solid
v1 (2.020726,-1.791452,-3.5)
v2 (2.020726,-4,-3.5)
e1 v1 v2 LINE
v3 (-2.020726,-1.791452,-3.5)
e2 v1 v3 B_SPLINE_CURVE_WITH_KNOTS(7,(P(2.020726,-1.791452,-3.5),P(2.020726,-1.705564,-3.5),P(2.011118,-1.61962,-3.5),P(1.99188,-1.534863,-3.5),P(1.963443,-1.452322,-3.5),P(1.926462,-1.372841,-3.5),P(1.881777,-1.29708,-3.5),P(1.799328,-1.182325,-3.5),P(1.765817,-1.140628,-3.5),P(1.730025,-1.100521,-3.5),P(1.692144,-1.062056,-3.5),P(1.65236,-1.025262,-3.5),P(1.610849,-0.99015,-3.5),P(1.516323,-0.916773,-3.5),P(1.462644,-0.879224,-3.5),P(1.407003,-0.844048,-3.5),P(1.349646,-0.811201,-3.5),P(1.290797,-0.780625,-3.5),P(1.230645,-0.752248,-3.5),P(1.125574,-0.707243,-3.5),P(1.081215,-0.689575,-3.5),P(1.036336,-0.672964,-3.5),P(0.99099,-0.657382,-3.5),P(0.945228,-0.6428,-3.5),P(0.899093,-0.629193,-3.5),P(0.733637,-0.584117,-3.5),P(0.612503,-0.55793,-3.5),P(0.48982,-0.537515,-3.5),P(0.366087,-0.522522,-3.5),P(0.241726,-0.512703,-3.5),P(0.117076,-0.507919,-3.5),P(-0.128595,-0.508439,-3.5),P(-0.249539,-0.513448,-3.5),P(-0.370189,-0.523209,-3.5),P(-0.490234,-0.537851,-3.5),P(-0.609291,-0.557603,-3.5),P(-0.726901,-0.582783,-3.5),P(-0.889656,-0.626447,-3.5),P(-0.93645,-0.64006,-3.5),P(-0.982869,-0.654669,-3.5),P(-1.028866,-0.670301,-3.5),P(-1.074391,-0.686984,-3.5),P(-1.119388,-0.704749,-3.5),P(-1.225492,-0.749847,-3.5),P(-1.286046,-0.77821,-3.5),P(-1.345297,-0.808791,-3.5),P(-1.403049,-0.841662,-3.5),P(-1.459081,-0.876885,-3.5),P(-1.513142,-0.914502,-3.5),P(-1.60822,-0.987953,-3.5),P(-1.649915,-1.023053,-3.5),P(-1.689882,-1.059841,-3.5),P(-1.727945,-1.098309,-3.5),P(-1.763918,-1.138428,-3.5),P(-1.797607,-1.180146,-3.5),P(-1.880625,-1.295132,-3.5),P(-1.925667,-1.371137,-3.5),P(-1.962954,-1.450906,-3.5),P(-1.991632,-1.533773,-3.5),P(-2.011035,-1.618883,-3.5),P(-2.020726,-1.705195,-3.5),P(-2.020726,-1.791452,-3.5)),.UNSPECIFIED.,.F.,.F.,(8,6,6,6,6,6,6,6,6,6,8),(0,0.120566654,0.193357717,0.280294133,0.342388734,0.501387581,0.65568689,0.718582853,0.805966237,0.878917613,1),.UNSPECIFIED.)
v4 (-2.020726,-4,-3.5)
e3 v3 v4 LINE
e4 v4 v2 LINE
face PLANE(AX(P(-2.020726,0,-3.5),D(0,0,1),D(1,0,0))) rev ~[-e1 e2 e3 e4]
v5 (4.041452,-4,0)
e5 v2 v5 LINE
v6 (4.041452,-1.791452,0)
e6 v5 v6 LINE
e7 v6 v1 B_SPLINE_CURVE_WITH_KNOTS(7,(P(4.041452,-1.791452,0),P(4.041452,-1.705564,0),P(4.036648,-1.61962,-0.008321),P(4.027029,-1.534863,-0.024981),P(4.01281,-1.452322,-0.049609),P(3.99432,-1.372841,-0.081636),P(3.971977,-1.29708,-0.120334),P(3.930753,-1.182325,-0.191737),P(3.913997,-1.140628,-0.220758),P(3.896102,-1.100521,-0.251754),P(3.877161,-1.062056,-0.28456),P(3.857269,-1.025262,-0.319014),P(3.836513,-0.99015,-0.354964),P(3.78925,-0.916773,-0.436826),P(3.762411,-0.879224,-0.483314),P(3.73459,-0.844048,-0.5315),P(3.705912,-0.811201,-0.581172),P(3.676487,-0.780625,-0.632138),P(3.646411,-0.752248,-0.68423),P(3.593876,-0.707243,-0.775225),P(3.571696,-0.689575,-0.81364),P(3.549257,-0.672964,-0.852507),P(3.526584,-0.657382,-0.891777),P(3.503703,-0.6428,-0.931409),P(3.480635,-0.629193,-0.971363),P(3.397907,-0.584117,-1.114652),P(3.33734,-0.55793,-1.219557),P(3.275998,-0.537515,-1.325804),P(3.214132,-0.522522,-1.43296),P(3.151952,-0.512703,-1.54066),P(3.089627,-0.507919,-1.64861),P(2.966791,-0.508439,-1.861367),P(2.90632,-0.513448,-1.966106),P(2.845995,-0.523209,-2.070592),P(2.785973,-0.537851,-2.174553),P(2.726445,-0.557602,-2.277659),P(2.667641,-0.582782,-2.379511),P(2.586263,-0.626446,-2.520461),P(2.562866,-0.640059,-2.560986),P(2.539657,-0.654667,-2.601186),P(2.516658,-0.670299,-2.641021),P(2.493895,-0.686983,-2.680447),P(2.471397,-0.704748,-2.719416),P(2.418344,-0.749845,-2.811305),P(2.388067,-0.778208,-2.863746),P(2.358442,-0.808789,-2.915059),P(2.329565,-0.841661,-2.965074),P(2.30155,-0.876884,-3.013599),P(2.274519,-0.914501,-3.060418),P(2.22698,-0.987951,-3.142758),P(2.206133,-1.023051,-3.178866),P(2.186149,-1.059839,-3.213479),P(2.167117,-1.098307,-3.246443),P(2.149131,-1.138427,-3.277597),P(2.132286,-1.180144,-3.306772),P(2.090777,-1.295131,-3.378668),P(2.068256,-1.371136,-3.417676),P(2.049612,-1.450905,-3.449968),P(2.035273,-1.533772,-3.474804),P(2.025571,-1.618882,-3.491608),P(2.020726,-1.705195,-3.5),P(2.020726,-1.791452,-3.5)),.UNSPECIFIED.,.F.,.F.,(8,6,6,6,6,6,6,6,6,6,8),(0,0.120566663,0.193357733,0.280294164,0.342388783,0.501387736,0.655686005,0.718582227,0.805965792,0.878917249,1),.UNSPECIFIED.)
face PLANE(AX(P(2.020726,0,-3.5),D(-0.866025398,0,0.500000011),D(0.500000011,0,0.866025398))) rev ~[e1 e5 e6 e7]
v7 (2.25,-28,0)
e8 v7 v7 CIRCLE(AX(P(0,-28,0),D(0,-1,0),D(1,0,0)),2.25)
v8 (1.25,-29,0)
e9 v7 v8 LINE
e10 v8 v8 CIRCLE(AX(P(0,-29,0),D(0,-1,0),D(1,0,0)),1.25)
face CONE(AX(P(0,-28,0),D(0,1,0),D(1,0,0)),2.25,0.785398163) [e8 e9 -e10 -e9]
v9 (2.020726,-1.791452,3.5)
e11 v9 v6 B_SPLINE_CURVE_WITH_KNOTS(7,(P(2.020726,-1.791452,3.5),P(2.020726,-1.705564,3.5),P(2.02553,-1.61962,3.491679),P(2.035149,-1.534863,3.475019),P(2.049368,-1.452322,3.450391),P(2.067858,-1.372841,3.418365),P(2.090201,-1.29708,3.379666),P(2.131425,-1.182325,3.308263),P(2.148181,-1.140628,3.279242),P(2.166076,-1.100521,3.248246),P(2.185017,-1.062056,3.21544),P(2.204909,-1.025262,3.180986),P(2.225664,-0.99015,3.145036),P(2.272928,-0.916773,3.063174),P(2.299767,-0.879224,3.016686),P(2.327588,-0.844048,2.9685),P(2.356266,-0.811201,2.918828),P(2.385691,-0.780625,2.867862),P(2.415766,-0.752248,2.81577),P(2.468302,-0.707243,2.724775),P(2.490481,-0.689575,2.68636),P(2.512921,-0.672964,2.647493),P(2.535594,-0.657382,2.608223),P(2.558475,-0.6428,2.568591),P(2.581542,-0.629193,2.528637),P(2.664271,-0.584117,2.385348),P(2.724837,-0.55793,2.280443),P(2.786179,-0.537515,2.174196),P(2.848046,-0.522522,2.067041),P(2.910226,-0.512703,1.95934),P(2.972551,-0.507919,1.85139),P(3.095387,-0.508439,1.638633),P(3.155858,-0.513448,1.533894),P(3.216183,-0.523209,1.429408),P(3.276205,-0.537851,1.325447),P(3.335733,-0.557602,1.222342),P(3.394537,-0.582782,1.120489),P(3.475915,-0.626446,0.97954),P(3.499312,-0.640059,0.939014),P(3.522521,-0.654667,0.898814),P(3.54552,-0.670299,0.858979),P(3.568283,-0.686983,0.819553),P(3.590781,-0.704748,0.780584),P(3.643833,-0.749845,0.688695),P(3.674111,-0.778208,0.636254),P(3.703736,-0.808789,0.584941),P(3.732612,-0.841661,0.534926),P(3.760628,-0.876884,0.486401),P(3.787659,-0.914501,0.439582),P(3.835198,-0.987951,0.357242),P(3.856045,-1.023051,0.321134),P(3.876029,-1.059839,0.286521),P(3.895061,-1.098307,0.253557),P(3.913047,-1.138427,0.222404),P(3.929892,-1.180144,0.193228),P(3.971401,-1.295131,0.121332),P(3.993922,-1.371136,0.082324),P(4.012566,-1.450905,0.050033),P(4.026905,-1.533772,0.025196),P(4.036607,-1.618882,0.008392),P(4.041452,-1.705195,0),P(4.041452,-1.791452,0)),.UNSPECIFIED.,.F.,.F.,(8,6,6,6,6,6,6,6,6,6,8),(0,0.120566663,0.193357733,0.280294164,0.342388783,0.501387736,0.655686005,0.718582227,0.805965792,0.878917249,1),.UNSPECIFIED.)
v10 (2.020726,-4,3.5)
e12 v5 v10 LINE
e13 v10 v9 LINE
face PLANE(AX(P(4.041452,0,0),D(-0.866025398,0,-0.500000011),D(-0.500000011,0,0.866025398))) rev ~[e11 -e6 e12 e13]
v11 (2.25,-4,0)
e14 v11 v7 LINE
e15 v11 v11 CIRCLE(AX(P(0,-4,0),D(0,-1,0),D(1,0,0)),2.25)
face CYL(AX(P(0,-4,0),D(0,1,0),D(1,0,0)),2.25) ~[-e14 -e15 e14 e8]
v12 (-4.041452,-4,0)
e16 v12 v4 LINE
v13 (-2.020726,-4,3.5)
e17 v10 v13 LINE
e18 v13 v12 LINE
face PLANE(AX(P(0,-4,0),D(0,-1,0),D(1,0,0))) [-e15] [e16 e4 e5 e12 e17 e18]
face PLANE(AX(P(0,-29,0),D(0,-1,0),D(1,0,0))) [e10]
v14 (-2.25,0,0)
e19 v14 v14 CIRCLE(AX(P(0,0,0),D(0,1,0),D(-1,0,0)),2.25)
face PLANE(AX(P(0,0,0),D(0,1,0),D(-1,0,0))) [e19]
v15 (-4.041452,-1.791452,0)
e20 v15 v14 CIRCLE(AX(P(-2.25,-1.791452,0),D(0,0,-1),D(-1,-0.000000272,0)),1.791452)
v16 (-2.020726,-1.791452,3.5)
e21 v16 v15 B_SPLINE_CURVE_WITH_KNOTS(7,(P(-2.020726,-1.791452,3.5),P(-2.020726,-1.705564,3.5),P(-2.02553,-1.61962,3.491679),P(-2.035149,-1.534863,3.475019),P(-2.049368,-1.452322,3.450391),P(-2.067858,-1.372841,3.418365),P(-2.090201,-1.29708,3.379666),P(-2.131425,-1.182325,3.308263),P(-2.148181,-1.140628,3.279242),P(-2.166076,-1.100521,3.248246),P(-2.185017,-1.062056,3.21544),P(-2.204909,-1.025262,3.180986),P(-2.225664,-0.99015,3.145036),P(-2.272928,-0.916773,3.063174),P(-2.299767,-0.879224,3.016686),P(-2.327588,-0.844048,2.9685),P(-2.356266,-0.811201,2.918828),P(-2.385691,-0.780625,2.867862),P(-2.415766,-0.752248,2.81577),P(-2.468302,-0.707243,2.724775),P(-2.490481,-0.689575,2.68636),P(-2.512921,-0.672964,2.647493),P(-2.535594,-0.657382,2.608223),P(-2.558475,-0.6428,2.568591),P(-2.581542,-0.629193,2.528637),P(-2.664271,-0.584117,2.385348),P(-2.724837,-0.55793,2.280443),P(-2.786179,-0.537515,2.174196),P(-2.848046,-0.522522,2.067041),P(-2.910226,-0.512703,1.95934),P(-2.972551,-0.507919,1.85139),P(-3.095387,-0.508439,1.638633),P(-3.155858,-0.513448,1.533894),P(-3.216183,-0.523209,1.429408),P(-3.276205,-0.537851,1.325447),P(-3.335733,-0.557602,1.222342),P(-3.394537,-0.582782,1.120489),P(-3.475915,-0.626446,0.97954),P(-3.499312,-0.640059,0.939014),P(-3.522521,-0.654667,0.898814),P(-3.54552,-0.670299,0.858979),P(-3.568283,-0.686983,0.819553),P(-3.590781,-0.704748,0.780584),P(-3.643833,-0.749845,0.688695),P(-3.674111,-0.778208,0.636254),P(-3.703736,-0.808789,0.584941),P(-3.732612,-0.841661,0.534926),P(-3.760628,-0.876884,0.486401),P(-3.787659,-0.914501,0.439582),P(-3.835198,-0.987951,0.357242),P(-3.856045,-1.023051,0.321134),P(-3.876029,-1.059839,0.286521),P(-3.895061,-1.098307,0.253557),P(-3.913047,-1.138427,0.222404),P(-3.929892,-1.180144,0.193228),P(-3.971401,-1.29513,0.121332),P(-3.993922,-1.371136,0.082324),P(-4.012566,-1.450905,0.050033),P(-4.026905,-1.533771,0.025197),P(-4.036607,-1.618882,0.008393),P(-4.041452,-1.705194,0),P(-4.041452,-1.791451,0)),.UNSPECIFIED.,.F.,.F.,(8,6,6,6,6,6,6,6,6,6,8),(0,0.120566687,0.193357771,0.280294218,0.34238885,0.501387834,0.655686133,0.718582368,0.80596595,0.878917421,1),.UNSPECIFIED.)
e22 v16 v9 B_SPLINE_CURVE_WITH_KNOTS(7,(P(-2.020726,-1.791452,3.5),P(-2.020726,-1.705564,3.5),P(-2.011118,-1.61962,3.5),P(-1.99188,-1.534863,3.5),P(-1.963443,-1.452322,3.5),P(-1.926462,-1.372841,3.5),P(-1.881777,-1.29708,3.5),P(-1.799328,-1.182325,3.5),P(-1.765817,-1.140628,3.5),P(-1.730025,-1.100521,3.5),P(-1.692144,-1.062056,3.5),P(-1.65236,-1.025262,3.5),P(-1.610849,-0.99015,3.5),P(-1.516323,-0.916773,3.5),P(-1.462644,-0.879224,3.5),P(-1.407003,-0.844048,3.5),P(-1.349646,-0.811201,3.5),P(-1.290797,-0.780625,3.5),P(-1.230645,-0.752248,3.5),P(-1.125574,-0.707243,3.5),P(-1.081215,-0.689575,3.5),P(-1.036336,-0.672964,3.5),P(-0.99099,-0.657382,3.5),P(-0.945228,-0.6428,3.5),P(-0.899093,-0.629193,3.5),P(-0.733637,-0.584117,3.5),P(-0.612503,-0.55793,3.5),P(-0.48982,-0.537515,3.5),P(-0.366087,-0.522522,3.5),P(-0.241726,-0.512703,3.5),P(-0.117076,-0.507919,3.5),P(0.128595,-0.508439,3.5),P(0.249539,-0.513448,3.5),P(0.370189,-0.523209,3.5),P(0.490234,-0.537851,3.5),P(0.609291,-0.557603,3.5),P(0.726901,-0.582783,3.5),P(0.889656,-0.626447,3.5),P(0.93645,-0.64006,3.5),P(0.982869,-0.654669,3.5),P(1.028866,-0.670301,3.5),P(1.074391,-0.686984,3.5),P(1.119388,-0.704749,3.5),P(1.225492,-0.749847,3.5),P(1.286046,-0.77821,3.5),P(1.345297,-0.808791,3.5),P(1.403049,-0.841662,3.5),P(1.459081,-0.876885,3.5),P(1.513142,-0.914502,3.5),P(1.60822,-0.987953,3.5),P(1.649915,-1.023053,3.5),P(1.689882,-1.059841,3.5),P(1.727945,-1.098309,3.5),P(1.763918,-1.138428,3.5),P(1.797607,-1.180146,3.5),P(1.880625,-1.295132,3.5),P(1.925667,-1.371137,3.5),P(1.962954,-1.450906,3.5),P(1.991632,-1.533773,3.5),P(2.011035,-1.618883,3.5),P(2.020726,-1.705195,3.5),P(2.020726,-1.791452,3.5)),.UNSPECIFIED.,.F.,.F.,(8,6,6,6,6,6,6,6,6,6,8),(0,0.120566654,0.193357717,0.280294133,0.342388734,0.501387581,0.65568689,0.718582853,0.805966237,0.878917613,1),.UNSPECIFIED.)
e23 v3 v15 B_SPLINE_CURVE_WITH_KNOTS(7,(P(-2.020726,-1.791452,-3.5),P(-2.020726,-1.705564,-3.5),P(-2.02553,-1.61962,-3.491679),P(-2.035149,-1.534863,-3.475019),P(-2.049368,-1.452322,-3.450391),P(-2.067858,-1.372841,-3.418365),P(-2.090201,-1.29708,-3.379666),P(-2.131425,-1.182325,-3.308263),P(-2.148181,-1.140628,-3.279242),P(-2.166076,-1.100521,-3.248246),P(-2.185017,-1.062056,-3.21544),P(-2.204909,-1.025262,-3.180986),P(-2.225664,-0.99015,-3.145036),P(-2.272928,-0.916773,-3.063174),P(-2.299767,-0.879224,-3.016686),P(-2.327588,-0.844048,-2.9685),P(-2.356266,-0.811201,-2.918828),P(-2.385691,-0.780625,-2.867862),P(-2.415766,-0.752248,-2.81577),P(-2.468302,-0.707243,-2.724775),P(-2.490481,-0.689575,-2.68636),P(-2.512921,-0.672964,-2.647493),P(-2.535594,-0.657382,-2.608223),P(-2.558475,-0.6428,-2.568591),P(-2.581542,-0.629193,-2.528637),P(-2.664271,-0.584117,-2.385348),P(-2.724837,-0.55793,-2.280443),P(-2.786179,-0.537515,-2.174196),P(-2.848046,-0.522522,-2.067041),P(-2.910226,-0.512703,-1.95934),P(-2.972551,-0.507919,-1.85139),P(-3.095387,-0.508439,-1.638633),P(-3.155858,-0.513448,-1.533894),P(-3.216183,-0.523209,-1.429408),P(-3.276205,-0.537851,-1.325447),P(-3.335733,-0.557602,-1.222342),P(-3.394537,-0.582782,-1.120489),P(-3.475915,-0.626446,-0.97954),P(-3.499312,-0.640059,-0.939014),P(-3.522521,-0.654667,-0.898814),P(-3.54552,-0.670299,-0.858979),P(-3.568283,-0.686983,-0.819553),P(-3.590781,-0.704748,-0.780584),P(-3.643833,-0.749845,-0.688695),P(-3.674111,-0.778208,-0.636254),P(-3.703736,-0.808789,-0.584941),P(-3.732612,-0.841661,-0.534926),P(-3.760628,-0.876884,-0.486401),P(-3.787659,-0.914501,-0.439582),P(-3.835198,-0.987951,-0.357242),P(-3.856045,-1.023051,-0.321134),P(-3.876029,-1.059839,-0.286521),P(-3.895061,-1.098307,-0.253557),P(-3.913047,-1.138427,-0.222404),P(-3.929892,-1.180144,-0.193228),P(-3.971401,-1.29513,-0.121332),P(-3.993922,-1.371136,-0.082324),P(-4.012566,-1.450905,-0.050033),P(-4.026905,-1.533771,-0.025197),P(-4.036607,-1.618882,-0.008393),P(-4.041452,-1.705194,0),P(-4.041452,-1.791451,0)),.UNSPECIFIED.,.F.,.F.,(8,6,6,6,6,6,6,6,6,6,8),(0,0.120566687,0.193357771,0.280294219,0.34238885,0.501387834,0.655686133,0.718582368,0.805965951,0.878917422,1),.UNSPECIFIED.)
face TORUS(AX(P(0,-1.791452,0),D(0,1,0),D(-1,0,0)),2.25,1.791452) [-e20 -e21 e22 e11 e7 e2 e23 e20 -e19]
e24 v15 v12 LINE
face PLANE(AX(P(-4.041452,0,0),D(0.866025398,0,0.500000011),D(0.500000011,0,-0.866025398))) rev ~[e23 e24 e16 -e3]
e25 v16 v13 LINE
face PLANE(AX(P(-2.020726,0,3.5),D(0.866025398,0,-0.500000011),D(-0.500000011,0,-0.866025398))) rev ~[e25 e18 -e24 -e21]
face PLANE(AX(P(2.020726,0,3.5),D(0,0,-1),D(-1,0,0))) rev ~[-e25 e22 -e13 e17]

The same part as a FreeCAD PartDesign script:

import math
import FreeCAD as App
import Part
import Sketcher
from FreeCAD import Vector
Q = App.Units.Quantity


def edges_at(feature, points):
    """Names of the edges that pass closest to the given points."""
    edges = feature.Shape.Edges
    near = lambda p: min(range(len(edges)), key=lambda i: edges[i].distToShape(Part.Vertex(*p))[0])
    return sorted({f"Edge{near(p) + 1}" for p in points})

doc = App.newDocument("Part")
body = doc.addObject("PartDesign::Body", "Body")

# Sketch on XZ plane
sketch1 = body.newObject("Sketcher::SketchObject", "Sketch")
sketch1.AttachmentSupport = (doc.getObject("XZ_Plane"), [""])
sketch1.MapMode = "FlatFace"
sketch1.addGeometry([
    Part.LineSegment(Vector(2, 3.5, 0), Vector(-2, 3.5, 0)),  # 0
    Part.LineSegment(Vector(-2, 3.5, 0), Vector(-4, 0, 0)),  # 1
    Part.LineSegment(Vector(-4, 0, 0), Vector(-2, -3.5, 0)),  # 2
    Part.LineSegment(Vector(-2, -3.5, 0), Vector(2, -3.5, 0)),  # 3
    Part.LineSegment(Vector(2, -3.5, 0), Vector(4, 0, 0)),  # 4
    Part.LineSegment(Vector(4, 0, 0), Vector(2, 3.5, 0)),  # 5
], False)
sketch1.addConstraint([
    Sketcher.Constraint("Coincident", 0, 2, 1, 1),
    Sketcher.Constraint("Coincident", 1, 2, 2, 1),
    Sketcher.Constraint("Coincident", 2, 2, 3, 1),
    Sketcher.Constraint("Coincident", 3, 2, 4, 1),
    Sketcher.Constraint("Coincident", 4, 2, 5, 1),
    Sketcher.Constraint("Coincident", 5, 2, 0, 1),
    Sketcher.Constraint("Horizontal", 0),
    Sketcher.Constraint("Horizontal", 3),
    Sketcher.Constraint("Symmetric", 0, 2, 3, 2, -1, 1),
    Sketcher.Constraint("Symmetric", 1, 2, 4, 2, -1, 1),
    Sketcher.Constraint("PointOnObject", 1, 2, -1),
    Sketcher.Constraint("Parallel", 2, 5),
    Sketcher.Constraint("Vertical", 0, 2, 2, 2),
    Sketcher.Constraint("Angle", 1, Q("-120.000001 deg")),
    Sketcher.Constraint("DistanceY", 2, 2, 0, 2, Q("7 mm")),
    Sketcher.Constraint("DistanceX", 0, 2, 0, 1, Q("4.041452 mm")),
])
pad1 = body.newObject("PartDesign::Pad", "Pad")
pad1.Profile = sketch1
pad1.Length = 4

# Sketch on XZ plane
sketch2 = body.newObject("Sketcher::SketchObject", "Sketch001")
sketch2.AttachmentSupport = (doc.getObject("XZ_Plane"), [""])
sketch2.MapMode = "FlatFace"
sketch2.AttachmentOffset = App.Placement(Vector(0, 0, 4), App.Rotation())
sketch2.addGeometry(Part.Circle(Vector(0, 0, 0), Vector(0, 0, 1), 2.2), False)
sketch2.addConstraint([
    Sketcher.Constraint("Coincident", 0, 3, -1, 1),
    Sketcher.Constraint("Diameter", 0, Q("4.5 mm")),
])
pad2 = body.newObject("PartDesign::Pad", "Pad001")
pad2.Profile = sketch2
pad2.Length = 25

# Sketch on XY plane
sketch3 = body.newObject("Sketcher::SketchObject", "Sketch002")
sketch3.AttachmentSupport = (doc.getObject("XY_Plane"), [""])
sketch3.MapMode = "FlatFace"
sketch3.addGeometry([
    Part.LineSegment(Vector(-7.2, -4, 0), Vector(-4, -4, 0)),  # 0
    Part.LineSegment(Vector(-4, -4, 0), Vector(-4, -1.8, 0)),  # 1
    Part.ArcOfCircle(Part.Circle(Vector(-2.3, -1.8, 0), Vector(0, 0, 1), 1.8), math.radians(90), math.radians(180)),  # 2
    Part.LineSegment(Vector(-2.2, 0, 0), Vector(0, 0, 0)),  # 3
    Part.LineSegment(Vector(0, 0, 0), Vector(0, 3.4, 0)),  # 4
    Part.LineSegment(Vector(0, 3.4, 0), Vector(-7.6, 4.2, 0)),  # 5
    Part.LineSegment(Vector(-7.6, 4.2, 0), Vector(-7.2, -4, 0)),  # 6
], False)
sketch3.addConstraint([
    Sketcher.Constraint("Coincident", 0, 2, 1, 1),
    Sketcher.Constraint("Tangent", 1, 2, 2, 2),
    Sketcher.Constraint("Tangent", 2, 1, 3, 1),
    Sketcher.Constraint("Coincident", 3, 2, 4, 1),
    Sketcher.Constraint("Coincident", 4, 2, 5, 1),
    Sketcher.Constraint("Coincident", 5, 2, 6, 1),
    Sketcher.Constraint("Coincident", 6, 2, 0, 1),
    Sketcher.Constraint("Horizontal", 0),
    Sketcher.Constraint("Vertical", 1),
    Sketcher.Constraint("Horizontal", 3),
    Sketcher.Constraint("Vertical", 4),
    Sketcher.Constraint("Coincident", 3, 2, -1, 1),
    Sketcher.Constraint("DistanceX", 3, 1, 3, 2, Q("2.25 mm")),
    Sketcher.Constraint("Radius", 2, Q("1.791452 mm")),
    Sketcher.Constraint("DistanceX", 0, 1, 0, 2, Q("3.19811 mm")),
    Sketcher.Constraint("DistanceY", 1, 1, 1, 2, Q("2.188545 mm")),
    Sketcher.Constraint("DistanceY", 4, 1, 4, 2, Q("3.398254 mm")),
    Sketcher.Constraint("DistanceX", 5, 2, -1, 1, Q("7.627891 mm")),
    Sketcher.Constraint("DistanceY", 2, 1, 5, 2, Q("4.230388 mm")),
])
groove = body.newObject("PartDesign::Groove", "Groove")
groove.Profile = sketch3
groove.ReferenceAxis = (sketch3, ["V_Axis"])
groove.Angle = 360
doc.recompute()

chamfer = body.newObject("PartDesign::Chamfer", "Chamfer")
chamfer.Base = (groove, edges_at(groove, [(-2.25, -29, 0)]))
chamfer.Size = 1

doc.recompute()
